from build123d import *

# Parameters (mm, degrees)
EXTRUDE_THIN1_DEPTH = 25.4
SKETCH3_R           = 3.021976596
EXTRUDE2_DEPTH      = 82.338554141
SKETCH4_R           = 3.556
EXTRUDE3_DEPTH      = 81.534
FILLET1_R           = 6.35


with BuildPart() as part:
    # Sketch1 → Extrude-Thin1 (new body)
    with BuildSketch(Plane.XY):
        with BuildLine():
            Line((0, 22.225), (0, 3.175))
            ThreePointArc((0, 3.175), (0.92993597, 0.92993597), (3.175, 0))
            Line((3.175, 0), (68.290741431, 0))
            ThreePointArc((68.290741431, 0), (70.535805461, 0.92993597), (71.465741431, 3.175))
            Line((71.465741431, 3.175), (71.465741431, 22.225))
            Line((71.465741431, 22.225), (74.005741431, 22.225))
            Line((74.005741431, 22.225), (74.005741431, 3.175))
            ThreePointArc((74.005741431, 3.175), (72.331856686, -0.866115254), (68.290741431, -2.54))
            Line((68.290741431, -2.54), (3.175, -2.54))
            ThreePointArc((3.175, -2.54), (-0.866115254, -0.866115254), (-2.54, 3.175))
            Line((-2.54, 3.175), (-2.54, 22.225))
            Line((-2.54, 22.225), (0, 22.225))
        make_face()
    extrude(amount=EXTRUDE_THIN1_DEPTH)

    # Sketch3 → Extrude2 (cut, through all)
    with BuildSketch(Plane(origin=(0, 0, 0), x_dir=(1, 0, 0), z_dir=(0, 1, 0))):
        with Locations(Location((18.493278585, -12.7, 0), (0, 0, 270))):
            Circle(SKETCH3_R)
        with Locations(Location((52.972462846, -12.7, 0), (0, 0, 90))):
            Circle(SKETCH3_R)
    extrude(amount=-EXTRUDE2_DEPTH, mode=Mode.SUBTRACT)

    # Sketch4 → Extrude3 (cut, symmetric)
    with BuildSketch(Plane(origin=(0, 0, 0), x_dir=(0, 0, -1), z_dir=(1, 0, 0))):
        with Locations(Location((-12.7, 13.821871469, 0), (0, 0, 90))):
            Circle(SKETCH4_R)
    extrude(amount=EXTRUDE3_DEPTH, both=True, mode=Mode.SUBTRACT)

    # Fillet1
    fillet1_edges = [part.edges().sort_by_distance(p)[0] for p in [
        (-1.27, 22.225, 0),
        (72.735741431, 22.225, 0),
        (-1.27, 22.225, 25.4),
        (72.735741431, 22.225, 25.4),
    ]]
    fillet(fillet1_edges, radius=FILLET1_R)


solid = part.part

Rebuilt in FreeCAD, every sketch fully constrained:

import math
import FreeCAD as App
import Part
import Sketcher

V = App.Vector
Q = App.Units.Quantity


def edges_at(feature, points):
    """Names of the edges that pass closest to the given points."""
    edges = feature.Shape.Edges
    near = lambda p: min(range(len(edges)), key=lambda i: edges[i].distToShape(Part.Vertex(*p))[0])
    return sorted({f"Edge{near(p) + 1}" for p in points})

doc = App.newDocument("Part")
body = doc.addObject("PartDesign::Body", "Body")

# Sketch on XY plane
sketch1 = body.newObject("Sketcher::SketchObject", "Sketch")
sketch1.AttachmentSupport = (doc.getObject("XY_Plane"), [""])
sketch1.MapMode = "FlatFace"
sketch1.addGeometry(Part.LineSegment(V(0, 3.2, 0), V(0, 22.2, 0)), False)
sketch1.addGeometry(Part.LineSegment(V(0, 22.2, 0), V(-2.5, 22.2, 0)), False)
sketch1.addGeometry(Part.LineSegment(V(-2.5, 22.2, 0), V(-2.5, 3.2, 0)), False)
sketch1.addGeometry(Part.ArcOfCircle(Part.Circle(V(3.2, 3.2, 0), V(0, 0, 1), 5.7), math.radians(-180), math.radians(-90)), False)
sketch1.addGeometry(Part.LineSegment(V(3.2, -2.5, 0), V(68.3, -2.5, 0)), False)
sketch1.addGeometry(Part.ArcOfCircle(Part.Circle(V(68.3, 3.2, 0), V(0, 0, 1), 5.7), math.radians(-90), math.radians(0)), False)
sketch1.addGeometry(Part.LineSegment(V(74, 3.2, 0), V(74, 22.2, 0)), False)
sketch1.addGeometry(Part.LineSegment(V(74, 22.2, 0), V(71.5, 22.2, 0)), False)
sketch1.addGeometry(Part.LineSegment(V(71.5, 22.2, 0), V(71.5, 3.2, 0)), False)
sketch1.addGeometry(Part.ArcOfCircle(Part.Circle(V(68.3, 3.2, 0), V(0, 0, 1), 3.2), math.radians(-90), math.radians(0)), False)
sketch1.addGeometry(Part.LineSegment(V(68.3, 0, 0), V(3.2, 0, 0)), False)
sketch1.addGeometry(Part.ArcOfCircle(Part.Circle(V(3.2, 3.2, 0), V(0, 0, 1), 3.2), math.radians(-180), math.radians(-90)), False)
sketch1.addConstraint(Sketcher.Constraint("Coincident", 0, 2, 1, 1))
sketch1.addConstraint(Sketcher.Constraint("Coincident", 1, 2, 2, 1))
sketch1.addConstraint(Sketcher.Constraint("Tangent", 2, 2, 3, 1))
sketch1.addConstraint(Sketcher.Constraint("Tangent", 3, 2, 4, 1))
sketch1.addConstraint(Sketcher.Constraint("Tangent", 4, 2, 5, 1))
sketch1.addConstraint(Sketcher.Constraint("Tangent", 5, 2, 6, 1))
sketch1.addConstraint(Sketcher.Constraint("Coincident", 6, 2, 7, 1))
sketch1.addConstraint(Sketcher.Constraint("Coincident", 7, 2, 8, 1))
sketch1.addConstraint(Sketcher.Constraint("Tangent", 8, 2, 9, 2))
sketch1.addConstraint(Sketcher.Constraint("Tangent", 9, 1, 10, 1))
sketch1.addConstraint(Sketcher.Constraint("Tangent", 10, 2, 11, 2))
sketch1.addConstraint(Sketcher.Constraint("Tangent", 11, 1, 0, 1))
sketch1.addConstraint(Sketcher.Constraint("Vertical", 0))
sketch1.addConstraint(Sketcher.Constraint("Horizontal", 1))
sketch1.addConstraint(Sketcher.Constraint("Vertical", 2))
sketch1.addConstraint(Sketcher.Constraint("Horizontal", 4))
sketch1.addConstraint(Sketcher.Constraint("Vertical", 6))
sketch1.addConstraint(Sketcher.Constraint("Horizontal", 7))
sketch1.addConstraint(Sketcher.Constraint("Vertical", 8))
sketch1.addConstraint(Sketcher.Constraint("Horizontal", 10))
sketch1.addConstraint(Sketcher.Constraint("Coincident", 9, 3, 5, 3))
sketch1.addConstraint(Sketcher.Constraint("Coincident", 11, 3, 3, 3))
sketch1.addConstraint(Sketcher.Constraint("Equal", 3, 5))
sketch1.addConstraint(Sketcher.Constraint("PointOnObject", 0, 2, -2))
sketch1.addConstraint(Sketcher.Constraint("PointOnObject", 9, 1, -1))
sketch1.addConstraint(Sketcher.Constraint("Horizontal", 1, 2, 6, 2))
sketch1.addConstraint(Sketcher.Constraint("DistanceX", 1, 2, 1, 1, Q("0.1 in")))
sketch1.addConstraint(Sketcher.Constraint("Radius", 3, Q("0.225 in")))
sketch1.addConstraint(Sketcher.Constraint("DistanceY", 0, 1, 0, 2, Q("0.75 in")))
sketch1.addConstraint(Sketcher.Constraint("DistanceX", 4, 1, 4, 2, Q("65.115741 mm")))
pad1 = body.newObject("PartDesign::Pad", "Pad")
pad1.Profile = sketch1
pad1.Length = Q("1 in")

# Sketch on XZ plane
sketch2 = body.newObject("Sketcher::SketchObject", "Sketch001")
sketch2.AttachmentSupport = (doc.getObject("XZ_Plane"), [""])
sketch2.MapMode = "FlatFace"
sketch2.addGeometry(Part.Circle(V(18.5, 12.7, 0), V(0, 0, 1), 3), False)
sketch2.addGeometry(Part.Circle(V(53, 12.7, 0), V(0, 0, 1), 3), False)
sketch2.addConstraint(Sketcher.Constraint("Equal", 0, 1))
sketch2.addConstraint(Sketcher.Constraint("Horizontal", 0, 3, 1, 3))
sketch2.addConstraint(Sketcher.Constraint("DistanceY", -1, 1, 0, 3, Q("0.5 in")))
sketch2.addConstraint(Sketcher.Constraint("Diameter", 0, Q("6.043953 mm")))
sketch2.addConstraint(Sketcher.Constraint("DistanceX", -1, 1, 0, 3, Q("18.493279 mm")))
sketch2.addConstraint(Sketcher.Constraint("DistanceX", -1, 1, 1, 3, Q("52.972463 mm")))
pocket1 = body.newObject("PartDesign::Pocket", "Pocket")
pocket1.Profile = sketch2
pocket1.Type = "ThroughAll"
pocket1.Reversed = True

# Sketch on YZ plane
sketch3 = body.newObject("Sketcher::SketchObject", "Sketch002")
sketch3.AttachmentSupport = (doc.getObject("YZ_Plane"), [""])
sketch3.MapMode = "FlatFace"
sketch3.addGeometry(Part.Circle(V(13.8, 12.7, 0), V(0, 0, 1), 3.6), False)
sketch3.addConstraint(Sketcher.Constraint("Diameter", 0, Q("0.28 in")))
sketch3.addConstraint(Sketcher.Constraint("DistanceY", -1, 1, 0, 3, Q("0.5 in")))
sketch3.addConstraint(Sketcher.Constraint("DistanceX", -1, 1, 0, 3, Q("13.821871 mm")))
pocket2 = body.newObject("PartDesign::Pocket", "Pocket001")
pocket2.Profile = sketch3
pocket2.Length = Q("6.42 in")
pocket2.Midplane = True
doc.recompute()

fillet = body.newObject("PartDesign::Fillet", "Fillet")
fillet.Base = (pocket2, edges_at(pocket2, [
    (-1.27, 22.225, 0),
    (72.736, 22.225, 0),
    (-1.27, 22.225, 25.4),
    (72.736, 22.225, 25.4),
]))
fillet.Radius = Q("0.25 in")

doc.recompute()
